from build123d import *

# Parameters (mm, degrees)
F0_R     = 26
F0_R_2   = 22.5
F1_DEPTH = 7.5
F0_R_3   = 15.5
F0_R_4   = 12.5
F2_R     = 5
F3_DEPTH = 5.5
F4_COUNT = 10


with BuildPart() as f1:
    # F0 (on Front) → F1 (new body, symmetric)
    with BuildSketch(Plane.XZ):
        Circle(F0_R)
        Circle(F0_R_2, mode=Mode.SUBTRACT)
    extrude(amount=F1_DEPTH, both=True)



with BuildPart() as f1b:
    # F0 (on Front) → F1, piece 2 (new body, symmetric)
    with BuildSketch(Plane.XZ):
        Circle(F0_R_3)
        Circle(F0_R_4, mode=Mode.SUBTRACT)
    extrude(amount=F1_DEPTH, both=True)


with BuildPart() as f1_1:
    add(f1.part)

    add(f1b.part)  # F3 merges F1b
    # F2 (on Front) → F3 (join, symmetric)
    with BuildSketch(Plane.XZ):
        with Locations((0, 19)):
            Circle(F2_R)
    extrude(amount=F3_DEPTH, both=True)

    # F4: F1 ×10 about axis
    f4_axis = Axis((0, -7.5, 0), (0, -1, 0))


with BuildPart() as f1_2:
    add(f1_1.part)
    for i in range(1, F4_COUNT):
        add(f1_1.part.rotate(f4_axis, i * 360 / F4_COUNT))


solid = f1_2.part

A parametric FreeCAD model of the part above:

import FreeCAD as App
import Part
import Sketcher

V = App.Vector

doc = App.newDocument("Part")
params = doc.addObject("Spreadsheet::Sheet", "Params")
for row, (alias, value) in enumerate([
    ("sketch1_diameter", "52 mm"),
    ("sketch1_diameter2", "45 mm"),
    ("pad1_length", "15 mm"),
    ("sketch2_diameter", "31 mm"),
    ("sketch2_diameter2", "25 mm"),
    ("pad2_length", "15 mm"),
    ("sketch3_diameter", "10 mm"),
    ("pad3_length", "11 mm"),
], start=1):
    params.set(f"A{row}", alias)
    params.set(f"B{row}", "=" + value)
    params.setAlias(f"B{row}", alias)

body = doc.addObject("PartDesign::Body", "Body")

# Sketch on XZ plane
sketch1 = doc.addObject("Sketcher::SketchObject", "Sketch")
body.addObject(sketch1)
sketch1.AttachmentSupport = (doc.XZ_Plane, [""])
sketch1.MapMode = "FlatFace"
sketch1.addGeometry(Part.Circle(V(0, 0, 0), V(0, 0, 1), 26), False)
sketch1.addGeometry(Part.Circle(V(0, 0, 0), V(0, 0, 1), 22), False)
sketch1.addConstraint(Sketcher.Constraint("Coincident", 0, 3, -1, 1))
sketch1.addConstraint(Sketcher.Constraint("Coincident", 1, 3, -1, 1))
sketch1.addConstraint(Sketcher.Constraint("Diameter", 0, 52.0))
sketch1.addConstraint(Sketcher.Constraint("Diameter", 1, 45.0))
sketch1.setExpression("Constraints[2]", "Params.sketch1_diameter")
sketch1.setExpression("Constraints[3]", "Params.sketch1_diameter2")
pad1 = doc.addObject("PartDesign::Pad", "Pad")
body.addObject(pad1)
pad1.Profile = sketch1
pad1.setExpression("Length", "Params.pad1_length")
pad1.Midplane = True
body2 = doc.addObject("PartDesign::Body", "Body001")

# Sketch on XZ plane
sketch2 = doc.addObject("Sketcher::SketchObject", "Sketch001")
body2.addObject(sketch2)
sketch2.AttachmentSupport = (doc.getObject("XZ_Plane001"), [""])
sketch2.MapMode = "FlatFace"
sketch2.addGeometry(Part.Circle(V(0, 0, 0), V(0, 0, 1), 16), False)
sketch2.addGeometry(Part.Circle(V(0, 0, 0), V(0, 0, 1), 12), False)
sketch2.addConstraint(Sketcher.Constraint("Coincident", 0, 3, -1, 1))
sketch2.addConstraint(Sketcher.Constraint("Coincident", 1, 3, -1, 1))
sketch2.addConstraint(Sketcher.Constraint("Diameter", 0, 31.0))
sketch2.addConstraint(Sketcher.Constraint("Diameter", 1, 25.0))
sketch2.setExpression("Constraints[2]", "Params.sketch2_diameter")
sketch2.setExpression("Constraints[3]", "Params.sketch2_diameter2")
pad2 = doc.addObject("PartDesign::Pad", "Pad001")
body2.addObject(pad2)
pad2.Profile = sketch2
pad2.setExpression("Length", "Params.pad2_length")
pad2.Midplane = True
body.AllowCompound = True
doc.recompute()

boolean = doc.addObject("PartDesign::Boolean", "Boolean")
body.addObject(boolean)
boolean.Type = "Fuse"
boolean.addObjects([body2])

# Sketch on XZ plane
sketch3 = doc.addObject("Sketcher::SketchObject", "Sketch002")
body.addObject(sketch3)
sketch3.AttachmentSupport = (doc.XZ_Plane, [""])
sketch3.MapMode = "FlatFace"
sketch3.addGeometry(Part.Circle(V(0, 19, 0), V(0, 0, 1), 5), False)
sketch3.addConstraint(Sketcher.Constraint("PointOnObject", 0, 3, -2))
sketch3.addConstraint(Sketcher.Constraint("Diameter", 0, 10.0))
sketch3.addConstraint(Sketcher.Constraint("DistanceY", -1, 1, 0, 3, 19.0))
sketch3.setExpression("Constraints[1]", "Params.sketch3_diameter")
pad3 = doc.addObject("PartDesign::Pad", "Pad002")
body.addObject(pad3)
pad3.Profile = sketch3
pad3.setExpression("Length", "Params.pad3_length")
pad3.Midplane = True
body3 = doc.addObject("PartDesign::Body", "Body002")
doc.recompute()

body3.BaseFeature = body
doc.recompute()

body4 = doc.addObject("PartDesign::Body", "Body003")
body4.BaseFeature = body
body4.Placement = App.Placement(V(0, 0, 0), App.Rotation(V(0, -1, 0), 36))
boolean2 = doc.addObject("PartDesign::Boolean", "Boolean001")
body3.addObject(boolean2)
boolean2.Type = "Fuse"
boolean2.addObjects([body4])
doc.recompute()

body5 = doc.addObject("PartDesign::Body", "Body004")
body5.BaseFeature = body
body5.Placement = App.Placement(V(0, 0, 0), App.Rotation(V(0, -1, 0), 72))
boolean3 = doc.addObject("PartDesign::Boolean", "Boolean002")
body3.addObject(boolean3)
boolean3.Type = "Fuse"
boolean3.addObjects([body5])
doc.recompute()

body6 = doc.addObject("PartDesign::Body", "Body005")
body6.BaseFeature = body
body6.Placement = App.Placement(V(0, 0, 0), App.Rotation(V(0, -1, 0), 108))
boolean4 = doc.addObject("PartDesign::Boolean", "Boolean003")
body3.addObject(boolean4)
boolean4.Type = "Fuse"
boolean4.addObjects([body6])
doc.recompute()

body7 = doc.addObject("PartDesign::Body", "Body006")
body7.BaseFeature = body
body7.Placement = App.Placement(V(0, 0, 0), App.Rotation(V(0, -1, 0), 144))
boolean5 = doc.addObject("PartDesign::Boolean", "Boolean004")
body3.addObject(boolean5)
boolean5.Type = "Fuse"
boolean5.addObjects([body7])
doc.recompute()

body8 = doc.addObject("PartDesign::Body", "Body007")
body8.BaseFeature = body
body8.Placement = App.Placement(V(0, 0, 0), App.Rotation(V(0, -1, 0), 180))
boolean6 = doc.addObject("PartDesign::Boolean", "Boolean005")
body3.addObject(boolean6)
boolean6.Type = "Fuse"
boolean6.addObjects([body8])
doc.recompute()

body9 = doc.addObject("PartDesign::Body", "Body008")
body9.BaseFeature = body
body9.Placement = App.Placement(V(0, 0, 0), App.Rotation(V(0, -1, 0), 216))
boolean7 = doc.addObject("PartDesign::Boolean", "Boolean006")
body3.addObject(boolean7)
boolean7.Type = "Fuse"
boolean7.addObjects([body9])
doc.recompute()

body10 = doc.addObject("PartDesign::Body", "Body009")
body10.BaseFeature = body
body10.Placement = App.Placement(V(0, 0, 0), App.Rotation(V(0, -1, 0), 252))
boolean8 = doc.addObject("PartDesign::Boolean", "Boolean007")
body3.addObject(boolean8)
boolean8.Type = "Fuse"
boolean8.addObjects([body10])
doc.recompute()

body11 = doc.addObject("PartDesign::Body", "Body010")
body11.BaseFeature = body
body11.Placement = App.Placement(V(0, 0, 0), App.Rotation(V(0, -1, 0), 288))
boolean9 = doc.addObject("PartDesign::Boolean", "Boolean008")
body3.addObject(boolean9)
boolean9.Type = "Fuse"
boolean9.addObjects([body11])
doc.recompute()

body.Placement = App.Placement(V(0, 0, 0), App.Rotation(V(0, -1, 0), 324))
boolean10 = doc.addObject("PartDesign::Boolean", "Boolean009")
body3.addObject(boolean10)
boolean10.Type = "Fuse"
boolean10.addObjects([body])

doc.recompute()
